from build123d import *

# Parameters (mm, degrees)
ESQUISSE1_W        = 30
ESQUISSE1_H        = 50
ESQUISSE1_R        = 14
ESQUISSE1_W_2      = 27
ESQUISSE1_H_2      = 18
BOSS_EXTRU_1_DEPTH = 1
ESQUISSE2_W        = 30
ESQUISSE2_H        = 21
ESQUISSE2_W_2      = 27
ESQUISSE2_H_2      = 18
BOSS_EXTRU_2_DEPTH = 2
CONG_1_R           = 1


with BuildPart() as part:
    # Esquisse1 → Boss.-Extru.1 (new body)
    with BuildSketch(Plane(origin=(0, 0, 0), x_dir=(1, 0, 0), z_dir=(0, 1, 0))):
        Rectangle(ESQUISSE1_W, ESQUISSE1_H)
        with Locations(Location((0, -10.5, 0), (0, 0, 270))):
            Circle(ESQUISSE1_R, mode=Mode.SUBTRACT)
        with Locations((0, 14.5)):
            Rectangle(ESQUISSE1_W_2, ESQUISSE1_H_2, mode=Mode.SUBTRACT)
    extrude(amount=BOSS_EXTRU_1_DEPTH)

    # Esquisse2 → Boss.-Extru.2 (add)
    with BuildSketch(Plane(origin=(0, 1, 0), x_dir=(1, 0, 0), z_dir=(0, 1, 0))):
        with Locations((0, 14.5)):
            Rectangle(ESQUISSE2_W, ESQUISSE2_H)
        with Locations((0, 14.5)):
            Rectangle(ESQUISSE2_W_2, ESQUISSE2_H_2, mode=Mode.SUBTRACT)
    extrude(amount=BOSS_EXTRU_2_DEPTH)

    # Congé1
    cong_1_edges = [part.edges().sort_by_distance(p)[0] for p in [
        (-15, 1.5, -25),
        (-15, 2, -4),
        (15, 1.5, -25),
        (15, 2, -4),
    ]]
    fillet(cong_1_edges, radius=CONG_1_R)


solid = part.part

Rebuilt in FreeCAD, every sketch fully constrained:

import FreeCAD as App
import Part
import Sketcher
from FreeCAD import Vector
Q = App.Units.Quantity


def edges_at(feature, points):
    """Names of the edges that pass closest to the given points."""
    edges = feature.Shape.Edges
    near = lambda p: min(range(len(edges)), key=lambda i: edges[i].distToShape(Part.Vertex(*p))[0])
    return sorted({f"Edge{near(p) + 1}" for p in points})

doc = App.newDocument("Part")
body = doc.addObject("PartDesign::Body", "Body")

sketch1 = body.newObject("Sketcher::SketchObject", "Sketch")
sketch1.AttachmentSupport = (doc.getObject("XZ_Plane"), [""])
sketch1.MapMode = "FlatFace"
sketch1.addGeometry([
    Part.LineSegment(Vector(-15, -25, 0), Vector(-15, 25, 0)),
    Part.LineSegment(Vector(-15, 25, 0), Vector(15, 25, 0)),
    Part.LineSegment(Vector(15, 25, 0), Vector(15, -25, 0)),
    Part.LineSegment(Vector(15, -25, 0), Vector(-15, -25, 0)),
    Part.Circle(Vector(0, 10, 0), Vector(0, 0, 1), 14),
    Part.LineSegment(Vector(14, -6, 0), Vector(-14, -6, 0)),
    Part.LineSegment(Vector(-14, -6, 0), Vector(-14, -24, 0)),
    Part.LineSegment(Vector(-14, -24, 0), Vector(14, -24, 0)),
    Part.LineSegment(Vector(14, -24, 0), Vector(14, -6, 0)),
], False)
sketch1.addConstraint([
    Sketcher.Constraint("Coincident", 0, 2, 1, 1),
    Sketcher.Constraint("Coincident", 1, 2, 2, 1),
    Sketcher.Constraint("Coincident", 2, 2, 3, 1),
    Sketcher.Constraint("Coincident", 3, 2, 0, 1),
    Sketcher.Constraint("Coincident", 5, 2, 6, 1),
    Sketcher.Constraint("Coincident", 6, 2, 7, 1),
    Sketcher.Constraint("Coincident", 7, 2, 8, 1),
    Sketcher.Constraint("Coincident", 8, 2, 5, 1),
    Sketcher.Constraint("Vertical", 0),
    Sketcher.Constraint("Horizontal", 1),
    Sketcher.Constraint("Vertical", 2),
    Sketcher.Constraint("Horizontal", 3),
    Sketcher.Constraint("Horizontal", 5),
    Sketcher.Constraint("Vertical", 6),
    Sketcher.Constraint("Horizontal", 7),
    Sketcher.Constraint("Vertical", 8),
    Sketcher.Constraint("Symmetric", 0, 2, 2, 2, -1, 1),
    Sketcher.Constraint("PointOnObject", 4, 3, -2),
    Sketcher.Constraint("Diameter", 4, Q("28 mm")),
    Sketcher.Constraint("DistanceX", 1, 1, 1, 2, Q("30 mm")),
    Sketcher.Constraint("DistanceX", 5, 2, 5, 1, Q("27 mm")),
    Sketcher.Constraint("DistanceY", 0, 1, 0, 2, Q("50 mm")),
    Sketcher.Constraint("DistanceY", 6, 2, 6, 1, Q("18 mm")),
    Sketcher.Constraint("DistanceY", 5, 2, 4, 3, Q("16 mm")),
    Sketcher.Constraint("DistanceY", -1, 1, 4, 3, Q("10.5 mm")),
    Sketcher.Constraint("DistanceX", 5, 2, -1, 1, Q("13.5 mm")),
])
pad1 = body.newObject("PartDesign::Pad", "Pad")
pad1.Profile = sketch1
pad1.Length = 1
pad1.Reversed = True

sketch2 = body.newObject("Sketcher::SketchObject", "Sketch001")
sketch2.AttachmentSupport = (doc.getObject("XZ_Plane"), [""])
sketch2.MapMode = "FlatFace"
sketch2.AttachmentOffset = App.Placement(Vector(0, 0, -1), App.Rotation())
sketch2.addGeometry([
    Part.LineSegment(Vector(-15, -25, 0), Vector(-15, -4, 0)),
    Part.LineSegment(Vector(-15, -4, 0), Vector(15, -4, 0)),
    Part.LineSegment(Vector(15, -4, 0), Vector(15, -25, 0)),
    Part.LineSegment(Vector(15, -25, 0), Vector(-15, -25, 0)),
    Part.LineSegment(Vector(14, -6, 0), Vector(-14, -6, 0)),
    Part.LineSegment(Vector(-14, -6, 0), Vector(-14, -24, 0)),
    Part.LineSegment(Vector(-14, -24, 0), Vector(14, -24, 0)),
    Part.LineSegment(Vector(14, -24, 0), Vector(14, -6, 0)),
], False)
sketch2.addConstraint([
    Sketcher.Constraint("Coincident", 0, 2, 1, 1),
    Sketcher.Constraint("Coincident", 1, 2, 2, 1),
    Sketcher.Constraint("Coincident", 2, 2, 3, 1),
    Sketcher.Constraint("Coincident", 3, 2, 0, 1),
    Sketcher.Constraint("Coincident", 4, 2, 5, 1),
    Sketcher.Constraint("Coincident", 5, 2, 6, 1),
    Sketcher.Constraint("Coincident", 6, 2, 7, 1),
    Sketcher.Constraint("Coincident", 7, 2, 4, 1),
    Sketcher.Constraint("Vertical", 0),
    Sketcher.Constraint("Horizontal", 1),
    Sketcher.Constraint("Vertical", 2),
    Sketcher.Constraint("Horizontal", 3),
    Sketcher.Constraint("Horizontal", 4),
    Sketcher.Constraint("Vertical", 5),
    Sketcher.Constraint("Horizontal", 6),
    Sketcher.Constraint("Vertical", 7),
    Sketcher.Constraint("DistanceX", 1, 1, 1, 2, Q("30 mm")),
    Sketcher.Constraint("DistanceX", 4, 2, 4, 1, Q("27 mm")),
    Sketcher.Constraint("DistanceY", 0, 1, 0, 2, Q("21 mm")),
    Sketcher.Constraint("DistanceY", 5, 2, 5, 1, Q("18 mm")),
    Sketcher.Constraint("DistanceX", 0, 2, -1, 1, Q("15 mm")),
    Sketcher.Constraint("DistanceY", 0, 2, -1, 1, Q("4 mm")),
    Sketcher.Constraint("DistanceX", 4, 2, -1, 1, Q("13.5 mm")),
    Sketcher.Constraint("DistanceY", 4, 2, -1, 1, Q("5.5 mm")),
])
pad2 = body.newObject("PartDesign::Pad", "Pad001")
pad2.Profile = sketch2
pad2.Length = 2
pad2.Reversed = True
doc.recompute()

fillet = body.newObject("PartDesign::Fillet", "Fillet")
fillet.Base = (pad2, edges_at(pad2, [
    (-15, 1.5, -25),
    (-15, 2, -4),
    (15, 1.5, -25),
    (15, 2, -4),
]))
fillet.Radius = 1

doc.recompute()
